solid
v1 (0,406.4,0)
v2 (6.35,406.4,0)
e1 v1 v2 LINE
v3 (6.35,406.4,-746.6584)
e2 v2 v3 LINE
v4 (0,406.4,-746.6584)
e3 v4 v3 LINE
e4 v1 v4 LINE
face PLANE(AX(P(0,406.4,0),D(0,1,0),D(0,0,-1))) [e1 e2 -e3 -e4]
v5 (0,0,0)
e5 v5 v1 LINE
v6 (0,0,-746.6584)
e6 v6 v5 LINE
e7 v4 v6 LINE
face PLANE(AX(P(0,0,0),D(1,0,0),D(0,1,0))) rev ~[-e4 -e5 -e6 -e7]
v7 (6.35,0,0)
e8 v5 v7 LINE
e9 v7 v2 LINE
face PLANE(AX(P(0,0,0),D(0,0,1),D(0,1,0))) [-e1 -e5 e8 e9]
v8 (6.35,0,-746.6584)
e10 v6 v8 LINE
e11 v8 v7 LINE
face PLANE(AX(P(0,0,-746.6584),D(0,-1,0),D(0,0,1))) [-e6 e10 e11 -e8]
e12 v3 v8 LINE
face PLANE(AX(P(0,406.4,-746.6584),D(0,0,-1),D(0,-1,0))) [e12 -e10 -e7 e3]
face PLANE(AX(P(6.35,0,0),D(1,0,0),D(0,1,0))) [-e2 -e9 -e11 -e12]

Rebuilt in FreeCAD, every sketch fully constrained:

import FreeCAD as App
import Part
import Sketcher
from FreeCAD import Vector
Q = App.Units.Quantity


def add_polygon(sketch, points):
    """Adds a closed chain of lines whose ends are joined by coincident constraints."""
    first, n = sketch.GeometryCount, len(points)
    for a, b in zip(points, points[1:] + points[:1]):
        sketch.addGeometry(Part.LineSegment(App.Vector(*a, 0), App.Vector(*b, 0)), False)
    for i in range(n):
        sketch.addConstraint(Sketcher.Constraint("Coincident", first + i, 2, first + (i + 1) % n, 1))

doc = App.newDocument("Part")
params = doc.addObject("Spreadsheet::Sheet", "Params")
for row, (alias, value) in enumerate([
    ("sketch1_width", "16 in"),
    ("sketch1_height", "29.396 in"),
    ("pad1_length", "0.25 in"),
], start=1):
    params.set(f"A{row}", alias)
    params.set(f"B{row}", "=" + value)
    params.setAlias(f"B{row}", alias)

body = doc.addObject("PartDesign::Body", "Body")

sketch1 = body.newObject("Sketcher::SketchObject", "Sketch")
sketch1.AttachmentSupport = (doc.getObject("YZ_Plane"), [""])
sketch1.MapMode = "FlatFace"
add_polygon(sketch1, [(406.4, 0), (0, 0), (0, -746.6584), (406.4, -746.6584)])
sketch1.addConstraint([
    Sketcher.Constraint("Horizontal", 0),
    Sketcher.Constraint("Vertical", 1),
    Sketcher.Constraint("Horizontal", 2),
    Sketcher.Constraint("Vertical", 3),
    Sketcher.Constraint("Coincident", 0, 2, -1, 1),
    Sketcher.Constraint("DistanceX", 0, 2, 0, 1, Q("16 in")),
    Sketcher.Constraint("DistanceY", 1, 2, 1, 1, Q("29.396 in")),
])
sketch1.setExpression("Constraints[9]", "Params.sketch1_width")
sketch1.setExpression("Constraints[10]", "Params.sketch1_height")
pad1 = body.newObject("PartDesign::Pad", "Pad")
pad1.Profile = sketch1
pad1.setExpression("Length", "Params.pad1_length")

doc.recompute()
